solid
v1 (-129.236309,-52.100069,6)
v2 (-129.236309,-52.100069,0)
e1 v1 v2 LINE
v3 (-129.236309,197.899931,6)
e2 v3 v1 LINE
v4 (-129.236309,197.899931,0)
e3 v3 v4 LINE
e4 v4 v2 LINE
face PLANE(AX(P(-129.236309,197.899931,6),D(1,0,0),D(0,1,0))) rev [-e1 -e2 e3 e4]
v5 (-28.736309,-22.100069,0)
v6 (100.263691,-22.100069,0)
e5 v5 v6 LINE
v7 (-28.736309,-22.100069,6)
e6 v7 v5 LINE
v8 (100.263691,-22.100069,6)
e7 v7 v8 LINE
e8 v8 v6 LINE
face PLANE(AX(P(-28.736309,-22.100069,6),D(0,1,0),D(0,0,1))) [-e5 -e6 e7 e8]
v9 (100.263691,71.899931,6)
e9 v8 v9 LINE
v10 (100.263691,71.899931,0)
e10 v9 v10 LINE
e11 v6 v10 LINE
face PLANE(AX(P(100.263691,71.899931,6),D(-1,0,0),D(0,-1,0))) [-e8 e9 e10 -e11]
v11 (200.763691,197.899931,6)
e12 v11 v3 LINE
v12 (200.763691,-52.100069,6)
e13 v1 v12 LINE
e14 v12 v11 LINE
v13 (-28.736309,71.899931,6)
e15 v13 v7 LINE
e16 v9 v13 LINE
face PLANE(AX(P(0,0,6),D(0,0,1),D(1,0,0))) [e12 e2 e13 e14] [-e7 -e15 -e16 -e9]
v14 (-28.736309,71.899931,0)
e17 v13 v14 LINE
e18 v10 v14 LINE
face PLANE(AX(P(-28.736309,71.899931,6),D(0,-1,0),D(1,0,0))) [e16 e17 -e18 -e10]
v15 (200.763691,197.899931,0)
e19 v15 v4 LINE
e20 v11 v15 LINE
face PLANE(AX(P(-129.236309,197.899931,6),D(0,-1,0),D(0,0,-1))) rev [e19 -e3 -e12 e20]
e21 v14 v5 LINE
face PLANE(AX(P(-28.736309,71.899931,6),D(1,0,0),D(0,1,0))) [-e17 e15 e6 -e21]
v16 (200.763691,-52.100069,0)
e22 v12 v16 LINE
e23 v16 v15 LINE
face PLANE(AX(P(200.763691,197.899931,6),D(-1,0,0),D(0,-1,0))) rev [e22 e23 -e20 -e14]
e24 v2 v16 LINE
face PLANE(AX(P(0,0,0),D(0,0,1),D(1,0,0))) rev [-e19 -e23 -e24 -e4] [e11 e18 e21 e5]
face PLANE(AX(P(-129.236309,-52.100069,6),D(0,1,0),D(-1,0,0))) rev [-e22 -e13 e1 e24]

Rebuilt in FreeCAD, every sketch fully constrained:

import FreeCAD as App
import Part
import Sketcher

V = App.Vector


def add_polygon(sketch, points):
    """Adds a closed chain of lines whose ends are joined by coincident constraints."""
    first, n = sketch.GeometryCount, len(points)
    for a, b in zip(points, points[1:] + points[:1]):
        sketch.addGeometry(Part.LineSegment(App.Vector(*a, 0), App.Vector(*b, 0)), False)
    for i in range(n):
        sketch.addConstraint(Sketcher.Constraint("Coincident", first + i, 2, first + (i + 1) % n, 1))

doc = App.newDocument("Part")
body = doc.addObject("PartDesign::Body", "Body")

# Sketch on XY plane
sketch1 = doc.addObject("Sketcher::SketchObject", "Sketch")
body.addObject(sketch1)
sketch1.AttachmentSupport = (doc.XY_Plane, [""])
sketch1.MapMode = "FlatFace"
add_polygon(sketch1, [(-129, 198), (-129, -52), (201, -52), (201, 198)])  # lines 0-3
add_polygon(sketch1, [(100, -22), (-29, -22), (-29, 72), (100, 72)])  # lines 4-7
sketch1.addConstraint(Sketcher.Constraint("Vertical", 0))
sketch1.addConstraint(Sketcher.Constraint("Horizontal", 1))
sketch1.addConstraint(Sketcher.Constraint("Vertical", 2))
sketch1.addConstraint(Sketcher.Constraint("Horizontal", 3))
sketch1.addConstraint(Sketcher.Constraint("Horizontal", 4))
sketch1.addConstraint(Sketcher.Constraint("Vertical", 5))
sketch1.addConstraint(Sketcher.Constraint("Horizontal", 6))
sketch1.addConstraint(Sketcher.Constraint("Vertical", 7))
sketch1.addConstraint(Sketcher.Constraint("DistanceX", 1, 1, 1, 2, 330.0))
sketch1.addConstraint(Sketcher.Constraint("DistanceX", 4, 2, 4, 1, 129.0))
sketch1.addConstraint(Sketcher.Constraint("DistanceY", 0, 2, 0, 1, 250.0))
sketch1.addConstraint(Sketcher.Constraint("DistanceY", 5, 1, 5, 2, 94.0))
sketch1.addConstraint(Sketcher.Constraint("DistanceY", 0, 2, 4, 2, 30.0))
sketch1.addConstraint(Sketcher.Constraint("DistanceX", 0, 2, 4, 2, 100.5))
sketch1.addConstraint(Sketcher.Constraint("DistanceX", 0, 2, -1, 1, 129.236309))
sketch1.addConstraint(Sketcher.Constraint("DistanceY", 0, 2, -1, 1, 52.100069))
pad1 = doc.addObject("PartDesign::Pad", "Pad")
body.addObject(pad1)
pad1.Profile = sketch1
pad1.Length = 6

doc.recompute()
